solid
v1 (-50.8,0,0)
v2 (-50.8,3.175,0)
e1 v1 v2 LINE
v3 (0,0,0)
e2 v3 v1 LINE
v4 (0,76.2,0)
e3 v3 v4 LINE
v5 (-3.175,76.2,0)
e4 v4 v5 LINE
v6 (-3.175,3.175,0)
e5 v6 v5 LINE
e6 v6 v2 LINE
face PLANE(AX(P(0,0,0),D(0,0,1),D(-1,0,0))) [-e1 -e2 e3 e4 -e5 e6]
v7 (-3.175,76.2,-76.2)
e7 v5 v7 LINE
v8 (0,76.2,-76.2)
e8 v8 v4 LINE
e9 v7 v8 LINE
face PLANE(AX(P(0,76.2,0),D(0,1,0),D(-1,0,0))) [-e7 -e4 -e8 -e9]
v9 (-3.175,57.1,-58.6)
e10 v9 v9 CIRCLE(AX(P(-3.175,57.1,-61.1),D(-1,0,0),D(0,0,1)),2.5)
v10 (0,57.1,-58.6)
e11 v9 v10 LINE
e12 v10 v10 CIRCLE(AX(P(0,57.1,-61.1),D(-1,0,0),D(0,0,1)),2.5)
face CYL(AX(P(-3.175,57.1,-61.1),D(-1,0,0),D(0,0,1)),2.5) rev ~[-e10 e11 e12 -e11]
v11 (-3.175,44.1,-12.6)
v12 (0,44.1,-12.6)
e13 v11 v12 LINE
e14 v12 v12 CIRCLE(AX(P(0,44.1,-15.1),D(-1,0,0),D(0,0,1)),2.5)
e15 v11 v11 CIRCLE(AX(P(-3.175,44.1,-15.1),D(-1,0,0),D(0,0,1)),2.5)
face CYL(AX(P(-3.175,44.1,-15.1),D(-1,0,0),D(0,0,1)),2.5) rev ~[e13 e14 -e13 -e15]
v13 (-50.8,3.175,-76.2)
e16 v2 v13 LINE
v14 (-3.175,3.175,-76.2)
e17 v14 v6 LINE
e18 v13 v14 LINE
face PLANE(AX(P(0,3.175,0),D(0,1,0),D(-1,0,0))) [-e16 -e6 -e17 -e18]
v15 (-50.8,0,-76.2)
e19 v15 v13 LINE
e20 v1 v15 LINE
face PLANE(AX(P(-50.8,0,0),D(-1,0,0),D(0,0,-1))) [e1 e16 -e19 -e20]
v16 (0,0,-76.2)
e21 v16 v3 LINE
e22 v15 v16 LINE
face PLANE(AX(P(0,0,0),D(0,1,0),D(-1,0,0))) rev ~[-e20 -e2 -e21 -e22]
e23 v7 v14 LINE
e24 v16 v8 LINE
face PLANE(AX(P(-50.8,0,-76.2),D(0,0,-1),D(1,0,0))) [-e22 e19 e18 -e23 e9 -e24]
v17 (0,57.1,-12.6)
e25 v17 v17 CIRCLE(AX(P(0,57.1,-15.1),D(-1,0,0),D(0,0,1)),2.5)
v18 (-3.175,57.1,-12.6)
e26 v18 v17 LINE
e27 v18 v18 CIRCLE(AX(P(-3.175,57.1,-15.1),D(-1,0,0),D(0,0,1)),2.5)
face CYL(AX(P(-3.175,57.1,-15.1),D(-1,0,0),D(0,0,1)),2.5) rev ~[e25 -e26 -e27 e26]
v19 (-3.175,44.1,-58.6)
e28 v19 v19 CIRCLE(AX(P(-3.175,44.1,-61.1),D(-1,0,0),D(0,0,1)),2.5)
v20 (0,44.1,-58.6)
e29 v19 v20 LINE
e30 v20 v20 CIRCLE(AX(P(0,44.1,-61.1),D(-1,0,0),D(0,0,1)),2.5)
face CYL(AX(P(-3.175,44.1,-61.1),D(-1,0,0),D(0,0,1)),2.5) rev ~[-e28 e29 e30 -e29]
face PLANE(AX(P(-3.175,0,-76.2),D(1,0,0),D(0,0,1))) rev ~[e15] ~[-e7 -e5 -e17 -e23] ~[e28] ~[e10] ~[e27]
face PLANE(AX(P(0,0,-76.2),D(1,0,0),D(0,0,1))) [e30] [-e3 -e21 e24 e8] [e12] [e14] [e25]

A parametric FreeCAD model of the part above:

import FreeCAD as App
import Part
import Sketcher
from FreeCAD import Vector
Q = App.Units.Quantity


def faces_at(feature, points):
    """Names of the faces that lie closest to the given points."""
    faces = feature.Shape.Faces
    near = lambda p: min(range(len(faces)), key=lambda i: faces[i].distToShape(Part.Vertex(*p))[0])
    return sorted({f"Face{near(p) + 1}" for p in points})

doc = App.newDocument("Part")
body = doc.addObject("PartDesign::Body", "Body")

# Sketch on XZ plane
sketch1 = body.newObject("Sketcher::SketchObject", "Sketch")
sketch1.AttachmentSupport = (doc.getObject("XZ_Plane"), [""])
sketch1.MapMode = "FlatFace"
sketch1.addGeometry([
    Part.LineSegment(Vector(-51, 0, 0), Vector(0, 0, 0)),
    Part.LineSegment(Vector(0, 0, 0), Vector(0, -76, 0)),
    Part.LineSegment(Vector(0, -76, 0), Vector(-51, -76, 0)),
    Part.LineSegment(Vector(-51, -76, 0), Vector(-51, 0, 0)),
], False)
sketch1.addConstraint([
    Sketcher.Constraint("Coincident", 0, 2, 1, 1),
    Sketcher.Constraint("Coincident", 1, 2, 2, 1),
    Sketcher.Constraint("Coincident", 2, 2, 3, 1),
    Sketcher.Constraint("Coincident", 3, 2, 0, 1),
    Sketcher.Constraint("Horizontal", 0),
    Sketcher.Constraint("Vertical", 1),
    Sketcher.Constraint("Horizontal", 2),
    Sketcher.Constraint("Vertical", 3),
    Sketcher.Constraint("Coincident", 0, 2, -1, 1),
    Sketcher.Constraint("DistanceX", 0, 1, 0, 2, Q("2 in")),
    Sketcher.Constraint("DistanceY", 1, 2, 1, 1, Q("3 in")),
])
pad1 = body.newObject("PartDesign::Pad", "Pad")
pad1.Profile = sketch1
pad1.Length = Q("3 in")
pad1.Reversed = True
doc.recompute()

thickness = body.newObject("PartDesign::Thickness", "Thickness")
thickness.Base = (pad1, faces_at(pad1, [
    (-33.867, 25.4, 0),
    (-50.8, 25.4, -50.8),
    (-16.933, 25.4, -76.2),
    (-33.867, 76.2, -50.8),
]))
thickness.Value = Q("0.125 in")
thickness.Reversed = True
thickness.Join = "Intersection"

# Sketch on YZ plane
sketch2 = body.newObject("Sketcher::SketchObject", "Sketch001")
sketch2.AttachmentSupport = (doc.getObject("YZ_Plane"), [""])
sketch2.MapMode = "FlatFace"
sketch2.AttachmentOffset = App.Placement(Vector(0, 0, -0.125 * 25.4), App.Rotation())
sketch2.addGeometry([
    Part.Circle(Vector(44.1, -15.1, 0), Vector(0, 0, 1), 2.5),
    Part.Circle(Vector(57.1, -61.1, 0), Vector(0, 0, 1), 2.5),
    Part.Circle(Vector(44.1, -61.1, 0), Vector(0, 0, 1), 2.5),
    Part.Circle(Vector(57.1, -15.1, 0), Vector(0, 0, 1), 2.5),
], False)
sketch2.addConstraint([
    Sketcher.Constraint("Equal", 0, 1),
    Sketcher.Constraint("Equal", 1, 2),
    Sketcher.Constraint("Equal", 2, 3),
    Sketcher.Constraint("Horizontal", 1, 3, 2, 3),
    Sketcher.Constraint("Horizontal", 0, 3, 3, 3),
    Sketcher.Constraint("Vertical", 0, 3, 2, 3),
    Sketcher.Constraint("Vertical", 1, 3, 3, 3),
    Sketcher.Constraint("Diameter", 0, 5.0),
    Sketcher.Constraint("DistanceX", 0, 3, 1, 3, Q("0.5118 in")),
    Sketcher.Constraint("DistanceY", 1, 3, 0, 3, 46.0),
    Sketcher.Constraint("DistanceY", 0, 3, -1, 1, Q("0.5945 in")),
    Sketcher.Constraint("DistanceX", -1, 1, 0, 3, 44.1),
])
pocket1 = body.newObject("PartDesign::Pocket", "Pocket")
pocket1.Profile = sketch2
pocket1.Length = Q("1 in")
pocket1.Reversed = True

doc.recompute()
